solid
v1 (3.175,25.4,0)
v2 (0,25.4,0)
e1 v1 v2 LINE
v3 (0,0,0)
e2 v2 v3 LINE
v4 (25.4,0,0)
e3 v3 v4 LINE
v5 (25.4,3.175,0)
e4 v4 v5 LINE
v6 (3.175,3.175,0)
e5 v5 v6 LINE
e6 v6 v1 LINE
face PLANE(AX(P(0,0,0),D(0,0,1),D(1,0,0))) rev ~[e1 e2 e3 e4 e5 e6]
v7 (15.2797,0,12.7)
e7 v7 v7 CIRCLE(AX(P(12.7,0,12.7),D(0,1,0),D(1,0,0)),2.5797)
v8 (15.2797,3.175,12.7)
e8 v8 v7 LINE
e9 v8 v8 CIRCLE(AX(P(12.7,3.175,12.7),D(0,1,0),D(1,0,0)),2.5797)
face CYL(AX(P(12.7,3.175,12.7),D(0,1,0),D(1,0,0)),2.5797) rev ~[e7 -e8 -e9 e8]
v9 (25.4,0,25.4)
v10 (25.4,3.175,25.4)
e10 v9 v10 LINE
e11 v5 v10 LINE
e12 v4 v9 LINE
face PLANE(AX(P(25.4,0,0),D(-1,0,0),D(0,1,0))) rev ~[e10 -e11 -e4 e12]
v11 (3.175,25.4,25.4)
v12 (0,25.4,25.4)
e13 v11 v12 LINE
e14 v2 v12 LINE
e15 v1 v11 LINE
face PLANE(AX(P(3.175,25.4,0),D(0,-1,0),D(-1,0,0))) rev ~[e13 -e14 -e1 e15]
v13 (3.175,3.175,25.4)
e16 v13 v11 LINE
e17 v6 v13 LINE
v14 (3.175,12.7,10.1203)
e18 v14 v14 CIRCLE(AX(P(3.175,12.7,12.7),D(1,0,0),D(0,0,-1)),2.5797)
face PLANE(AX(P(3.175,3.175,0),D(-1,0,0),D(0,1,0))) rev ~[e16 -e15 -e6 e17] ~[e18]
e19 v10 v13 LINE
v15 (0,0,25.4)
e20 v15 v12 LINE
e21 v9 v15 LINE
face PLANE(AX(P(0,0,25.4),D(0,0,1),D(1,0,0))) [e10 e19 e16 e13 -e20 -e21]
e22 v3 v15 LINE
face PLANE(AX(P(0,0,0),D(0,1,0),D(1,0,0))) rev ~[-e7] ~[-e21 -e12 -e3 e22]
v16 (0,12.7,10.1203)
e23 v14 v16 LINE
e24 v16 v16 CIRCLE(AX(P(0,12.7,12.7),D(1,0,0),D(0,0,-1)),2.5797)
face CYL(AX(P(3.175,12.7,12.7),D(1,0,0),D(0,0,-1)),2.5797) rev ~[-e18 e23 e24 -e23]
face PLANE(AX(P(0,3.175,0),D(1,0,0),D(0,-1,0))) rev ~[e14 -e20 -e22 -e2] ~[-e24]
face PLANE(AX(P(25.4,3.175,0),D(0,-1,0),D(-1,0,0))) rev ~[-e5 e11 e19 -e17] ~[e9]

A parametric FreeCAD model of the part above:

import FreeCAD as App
import Part
import Sketcher

V = App.Vector
Q = App.Units.Quantity

doc = App.newDocument("Part")
body = doc.addObject("PartDesign::Body", "Body")

# Sketch on XY plane
sketch1 = body.newObject("Sketcher::SketchObject", "Sketch")
sketch1.AttachmentSupport = (doc.getObject("XY_Plane"), [""])
sketch1.MapMode = "FlatFace"
sketch1.addGeometry(Part.LineSegment(V(0, 0, 0), V(25.4, 0, 0)), False)
sketch1.addGeometry(Part.LineSegment(V(25.4, 0, 0), V(25.4, 3.2, 0)), False)
sketch1.addGeometry(Part.LineSegment(V(25.4, 3.2, 0), V(3.2, 3.2, 0)), False)
sketch1.addGeometry(Part.LineSegment(V(3.2, 3.2, 0), V(3.2, 25.4, 0)), False)
sketch1.addGeometry(Part.LineSegment(V(3.2, 25.4, 0), V(0, 25.4, 0)), False)
sketch1.addGeometry(Part.LineSegment(V(0, 25.4, 0), V(0, 0, 0)), False)
sketch1.addConstraint(Sketcher.Constraint("Coincident", 0, 2, 1, 1))
sketch1.addConstraint(Sketcher.Constraint("Coincident", 1, 2, 2, 1))
sketch1.addConstraint(Sketcher.Constraint("Coincident", 2, 2, 3, 1))
sketch1.addConstraint(Sketcher.Constraint("Coincident", 3, 2, 4, 1))
sketch1.addConstraint(Sketcher.Constraint("Coincident", 4, 2, 5, 1))
sketch1.addConstraint(Sketcher.Constraint("Coincident", 5, 2, 0, 1))
sketch1.addConstraint(Sketcher.Constraint("Horizontal", 0))
sketch1.addConstraint(Sketcher.Constraint("Vertical", 1))
sketch1.addConstraint(Sketcher.Constraint("Horizontal", 2))
sketch1.addConstraint(Sketcher.Constraint("Vertical", 3))
sketch1.addConstraint(Sketcher.Constraint("Horizontal", 4))
sketch1.addConstraint(Sketcher.Constraint("Vertical", 5))
sketch1.addConstraint(Sketcher.Constraint("Coincident", 5, 2, -1, 1))
sketch1.addConstraint(Sketcher.Constraint("Equal", 4, 1))
sketch1.addConstraint(Sketcher.Constraint("Equal", 2, 3))
sketch1.addConstraint(Sketcher.Constraint("DistanceX", 0, 1, 0, 2, Q("1 in")))
sketch1.addConstraint(Sketcher.Constraint("DistanceX", 4, 2, 4, 1, Q("0.125 in")))
pad1 = body.newObject("PartDesign::Pad", "Pad")
pad1.Profile = sketch1
pad1.Length = Q("1 in")

# Sketch on YZ plane
sketch2 = body.newObject("Sketcher::SketchObject", "Sketch001")
sketch2.AttachmentSupport = (doc.getObject("YZ_Plane"), [""])
sketch2.MapMode = "FlatFace"
sketch2.AttachmentOffset = App.Placement(V(0, 0, 0.125 * 25.4), App.Rotation())
sketch2.addGeometry(Part.Circle(V(12.7, 12.7, 0), V(0, 0, 1), 2.6), False)
sketch2.addConstraint(Sketcher.Constraint("Diameter", 0, Q("0.203126 in")))
sketch2.addConstraint(Sketcher.Constraint("DistanceX", -1, 1, 0, 3, Q("0.5 in")))
sketch2.addConstraint(Sketcher.Constraint("DistanceY", -1, 1, 0, 3, Q("0.5 in")))
pocket1 = body.newObject("PartDesign::Pocket", "Pocket")
pocket1.Profile = sketch2
pocket1.Length = Q("1 in")

# Sketch on XZ plane
sketch3 = body.newObject("Sketcher::SketchObject", "Sketch002")
sketch3.AttachmentSupport = (doc.getObject("XZ_Plane"), [""])
sketch3.MapMode = "FlatFace"
sketch3.AttachmentOffset = App.Placement(V(0, 0, -0.125 * 25.4), App.Rotation())
sketch3.addGeometry(Part.Circle(V(12.7, 12.7, 0), V(0, 0, 1), 2.6), False)
sketch3.addConstraint(Sketcher.Constraint("Diameter", 0, Q("0.203126 in")))
sketch3.addConstraint(Sketcher.Constraint("DistanceX", -1, 1, 0, 3, Q("0.5 in")))
sketch3.addConstraint(Sketcher.Constraint("DistanceY", -1, 1, 0, 3, Q("0.5 in")))
pocket2 = body.newObject("PartDesign::Pocket", "Pocket001")
pocket2.Profile = sketch3
pocket2.Length = Q("1 in")
pocket2.Reversed = True

doc.recompute()
